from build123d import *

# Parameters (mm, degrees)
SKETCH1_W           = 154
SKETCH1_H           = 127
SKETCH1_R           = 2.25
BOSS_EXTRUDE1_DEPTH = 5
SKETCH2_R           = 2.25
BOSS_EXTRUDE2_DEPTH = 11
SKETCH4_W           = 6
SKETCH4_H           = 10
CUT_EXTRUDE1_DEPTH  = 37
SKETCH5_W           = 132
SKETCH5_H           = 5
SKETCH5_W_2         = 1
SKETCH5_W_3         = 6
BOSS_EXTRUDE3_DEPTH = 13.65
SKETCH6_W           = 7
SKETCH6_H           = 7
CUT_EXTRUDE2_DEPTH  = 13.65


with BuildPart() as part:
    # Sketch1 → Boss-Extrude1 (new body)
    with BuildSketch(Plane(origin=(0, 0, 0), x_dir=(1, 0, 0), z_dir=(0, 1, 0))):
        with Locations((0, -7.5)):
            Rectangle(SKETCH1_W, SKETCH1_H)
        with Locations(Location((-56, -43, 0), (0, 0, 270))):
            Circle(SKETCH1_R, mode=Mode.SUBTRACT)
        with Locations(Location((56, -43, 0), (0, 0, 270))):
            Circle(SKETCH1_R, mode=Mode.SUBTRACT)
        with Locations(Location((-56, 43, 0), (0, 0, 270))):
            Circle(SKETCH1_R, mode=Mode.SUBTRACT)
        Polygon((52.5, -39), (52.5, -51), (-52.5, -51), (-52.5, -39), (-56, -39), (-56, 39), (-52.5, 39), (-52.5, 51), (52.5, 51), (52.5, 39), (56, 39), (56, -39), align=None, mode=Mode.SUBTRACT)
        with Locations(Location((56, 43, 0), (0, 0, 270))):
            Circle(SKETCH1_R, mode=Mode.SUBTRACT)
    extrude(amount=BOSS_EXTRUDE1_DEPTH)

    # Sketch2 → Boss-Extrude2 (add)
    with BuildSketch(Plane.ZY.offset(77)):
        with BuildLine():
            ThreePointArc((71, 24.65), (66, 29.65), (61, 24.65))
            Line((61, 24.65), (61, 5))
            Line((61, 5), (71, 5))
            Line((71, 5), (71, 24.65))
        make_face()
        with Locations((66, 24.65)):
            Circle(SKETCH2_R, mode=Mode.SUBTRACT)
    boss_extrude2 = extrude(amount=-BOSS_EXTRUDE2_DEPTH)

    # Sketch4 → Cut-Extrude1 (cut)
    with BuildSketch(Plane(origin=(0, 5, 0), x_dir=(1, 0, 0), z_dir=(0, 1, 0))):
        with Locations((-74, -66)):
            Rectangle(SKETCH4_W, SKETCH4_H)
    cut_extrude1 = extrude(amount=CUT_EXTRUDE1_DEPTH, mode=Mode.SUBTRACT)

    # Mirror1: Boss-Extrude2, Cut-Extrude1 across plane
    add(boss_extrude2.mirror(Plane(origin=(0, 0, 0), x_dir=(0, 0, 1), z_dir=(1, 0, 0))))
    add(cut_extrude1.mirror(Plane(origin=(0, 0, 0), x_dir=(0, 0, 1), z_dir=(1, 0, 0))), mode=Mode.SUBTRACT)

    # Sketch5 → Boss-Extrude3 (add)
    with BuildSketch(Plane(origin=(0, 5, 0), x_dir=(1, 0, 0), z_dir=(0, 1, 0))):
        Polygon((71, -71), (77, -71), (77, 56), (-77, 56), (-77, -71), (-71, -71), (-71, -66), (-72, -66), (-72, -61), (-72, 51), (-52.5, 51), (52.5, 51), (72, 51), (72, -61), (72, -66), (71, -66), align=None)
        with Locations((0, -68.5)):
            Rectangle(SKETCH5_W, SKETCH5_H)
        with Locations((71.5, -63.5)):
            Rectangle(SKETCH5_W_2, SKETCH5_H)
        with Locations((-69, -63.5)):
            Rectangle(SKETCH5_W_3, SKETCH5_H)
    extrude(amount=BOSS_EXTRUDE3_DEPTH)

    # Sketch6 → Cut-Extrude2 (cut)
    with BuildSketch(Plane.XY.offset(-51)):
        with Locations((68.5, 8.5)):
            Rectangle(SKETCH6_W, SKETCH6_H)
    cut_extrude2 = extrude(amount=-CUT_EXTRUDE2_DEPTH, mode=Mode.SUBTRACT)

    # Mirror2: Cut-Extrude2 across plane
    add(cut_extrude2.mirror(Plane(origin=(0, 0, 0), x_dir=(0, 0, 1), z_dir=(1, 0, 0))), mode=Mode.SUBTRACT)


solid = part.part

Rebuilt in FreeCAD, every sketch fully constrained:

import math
import FreeCAD as App
import Part
import Sketcher
from FreeCAD import Vector

doc = App.newDocument("Part")
body = doc.addObject("PartDesign::Body", "Body")

sketch1 = doc.addObject("Sketcher::SketchObject", "Sketch")
body.addObject(sketch1)
sketch1.AttachmentSupport = (doc.XZ_Plane, [""])
sketch1.MapMode = "FlatFace"
sketch1.addGeometry(Part.LineSegment(Vector(-77, -56, 0), Vector(-77, 71, 0)), False)
sketch1.addGeometry(Part.LineSegment(Vector(-77, 71, 0), Vector(77, 71, 0)), False)
sketch1.addGeometry(Part.LineSegment(Vector(77, 71, 0), Vector(77, -56, 0)), False)
sketch1.addGeometry(Part.LineSegment(Vector(77, -56, 0), Vector(-77, -56, 0)), False)
sketch1.addGeometry(Part.Circle(Vector(-56, 43, 0), Vector(0, 0, 1), 2.2), False)
sketch1.addGeometry(Part.Circle(Vector(56, 43, 0), Vector(0, 0, 1), 2.2), False)
sketch1.addGeometry(Part.Circle(Vector(-56, -43, 0), Vector(0, 0, 1), 2.2), False)
sketch1.addGeometry(Part.LineSegment(Vector(56, 39, 0), Vector(52.5, 39, 0)), False)
sketch1.addGeometry(Part.LineSegment(Vector(52.5, 39, 0), Vector(52.5, 51, 0)), False)
sketch1.addGeometry(Part.LineSegment(Vector(52.5, 51, 0), Vector(-52.5, 51, 0)), False)
sketch1.addGeometry(Part.LineSegment(Vector(-52.5, 51, 0), Vector(-52.5, 39, 0)), False)
sketch1.addGeometry(Part.LineSegment(Vector(-52.5, 39, 0), Vector(-56, 39, 0)), False)
sketch1.addGeometry(Part.LineSegment(Vector(-56, 39, 0), Vector(-56, -39, 0)), False)
sketch1.addGeometry(Part.LineSegment(Vector(-56, -39, 0), Vector(-52.5, -39, 0)), False)
sketch1.addGeometry(Part.LineSegment(Vector(-52.5, -39, 0), Vector(-52.5, -51, 0)), False)
sketch1.addGeometry(Part.LineSegment(Vector(-52.5, -51, 0), Vector(52.5, -51, 0)), False)
sketch1.addGeometry(Part.LineSegment(Vector(52.5, -51, 0), Vector(52.5, -39, 0)), False)
sketch1.addGeometry(Part.LineSegment(Vector(52.5, -39, 0), Vector(56, -39, 0)), False)
sketch1.addGeometry(Part.LineSegment(Vector(56, -39, 0), Vector(56, 39, 0)), False)
sketch1.addGeometry(Part.Circle(Vector(56, -43, 0), Vector(0, 0, 1), 2.2), False)
sketch1.addConstraint(Sketcher.Constraint("Coincident", 0, 2, 1, 1))
sketch1.addConstraint(Sketcher.Constraint("Coincident", 1, 2, 2, 1))
sketch1.addConstraint(Sketcher.Constraint("Coincident", 2, 2, 3, 1))
sketch1.addConstraint(Sketcher.Constraint("Coincident", 3, 2, 0, 1))
sketch1.addConstraint(Sketcher.Constraint("Coincident", 7, 2, 8, 1))
sketch1.addConstraint(Sketcher.Constraint("Coincident", 8, 2, 9, 1))
sketch1.addConstraint(Sketcher.Constraint("Coincident", 9, 2, 10, 1))
sketch1.addConstraint(Sketcher.Constraint("Coincident", 10, 2, 11, 1))
sketch1.addConstraint(Sketcher.Constraint("Coincident", 11, 2, 12, 1))
sketch1.addConstraint(Sketcher.Constraint("Coincident", 12, 2, 13, 1))
sketch1.addConstraint(Sketcher.Constraint("Coincident", 13, 2, 14, 1))
sketch1.addConstraint(Sketcher.Constraint("Coincident", 14, 2, 15, 1))
sketch1.addConstraint(Sketcher.Constraint("Coincident", 15, 2, 16, 1))
sketch1.addConstraint(Sketcher.Constraint("Coincident", 16, 2, 17, 1))
sketch1.addConstraint(Sketcher.Constraint("Coincident", 17, 2, 18, 1))
sketch1.addConstraint(Sketcher.Constraint("Coincident", 18, 2, 7, 1))
sketch1.addConstraint(Sketcher.Constraint("Vertical", 0))
sketch1.addConstraint(Sketcher.Constraint("Horizontal", 1))
sketch1.addConstraint(Sketcher.Constraint("Vertical", 2))
sketch1.addConstraint(Sketcher.Constraint("Horizontal", 3))
sketch1.addConstraint(Sketcher.Constraint("Horizontal", 7))
sketch1.addConstraint(Sketcher.Constraint("Vertical", 8))
sketch1.addConstraint(Sketcher.Constraint("Horizontal", 9))
sketch1.addConstraint(Sketcher.Constraint("Vertical", 10))
sketch1.addConstraint(Sketcher.Constraint("Horizontal", 11))
sketch1.addConstraint(Sketcher.Constraint("Vertical", 12))
sketch1.addConstraint(Sketcher.Constraint("Horizontal", 13))
sketch1.addConstraint(Sketcher.Constraint("Vertical", 14))
sketch1.addConstraint(Sketcher.Constraint("Horizontal", 15))
sketch1.addConstraint(Sketcher.Constraint("Vertical", 16))
sketch1.addConstraint(Sketcher.Constraint("Horizontal", 17))
sketch1.addConstraint(Sketcher.Constraint("Vertical", 18))
sketch1.addConstraint(Sketcher.Constraint("Equal", 4, 5))
sketch1.addConstraint(Sketcher.Constraint("Equal", 5, 6))
sketch1.addConstraint(Sketcher.Constraint("Equal", 6, 19))
sketch1.addConstraint(Sketcher.Constraint("Symmetric", 5, 3, 6, 3, -1, 1))
sketch1.addConstraint(Sketcher.Constraint("Symmetric", 4, 3, 19, 3, -1, 1))
sketch1.addConstraint(Sketcher.Constraint("Symmetric", 7, 2, 13, 2, -1, 1))
sketch1.addConstraint(Sketcher.Constraint("Symmetric", 9, 2, 15, 2, -1, 1))
sketch1.addConstraint(Sketcher.Constraint("Symmetric", 11, 2, 17, 2, -1, 1))
sketch1.addConstraint(Sketcher.Constraint("Symmetric", 4, 3, 5, 3, -2))
sketch1.addConstraint(Sketcher.Constraint("Symmetric", 7, 2, 10, 2, -2))
sketch1.addConstraint(Sketcher.Constraint("Vertical", 6, 3, 11, 2))
sketch1.addConstraint(Sketcher.Constraint("Diameter", 4, 4.5))
sketch1.addConstraint(Sketcher.Constraint("DistanceX", 1, 1, 1, 2, 154.0))
sketch1.addConstraint(Sketcher.Constraint("DistanceX", 9, 2, 9, 1, 105.0))
sketch1.addConstraint(Sketcher.Constraint("DistanceY", 0, 1, 0, 2, 127.0))
sketch1.addConstraint(Sketcher.Constraint("DistanceY", 8, 1, 8, 2, 12.0))
sketch1.addConstraint(Sketcher.Constraint("DistanceY", 12, 2, 12, 1, 78.0))
sketch1.addConstraint(Sketcher.Constraint("DistanceX", 7, 2, 7, 1, 3.5))
sketch1.addConstraint(Sketcher.Constraint("DistanceY", -1, 1, 4, 3, 43.0))
sketch1.addConstraint(Sketcher.Constraint("DistanceX", 0, 2, -1, 1, 77.0))
sketch1.addConstraint(Sketcher.Constraint("DistanceY", -1, 1, 0, 2, 71.0))
pad1 = doc.addObject("PartDesign::Pad", "Pad")
body.addObject(pad1)
pad1.Profile = sketch1
pad1.Length = 5
pad1.Reversed = True

sketch2 = doc.addObject("Sketcher::SketchObject", "Sketch001")
body.addObject(sketch2)
sketch2.AttachmentSupport = (doc.YZ_Plane, [""])
sketch2.MapMode = "FlatFace"
sketch2.AttachmentOffset = App.Placement(Vector(0, 0, -77), App.Rotation())
sketch2.addGeometry(Part.ArcOfCircle(Part.Circle(Vector(24.6, 66, 0), Vector(0, 0, 1), 5), math.radians(-90), math.radians(90)), False)
sketch2.addGeometry(Part.LineSegment(Vector(24.6, 61, 0), Vector(5, 61, 0)), False)
sketch2.addGeometry(Part.LineSegment(Vector(5, 61, 0), Vector(5, 71, 0)), False)
sketch2.addGeometry(Part.LineSegment(Vector(5, 71, 0), Vector(24.6, 71, 0)), False)
sketch2.addGeometry(Part.Circle(Vector(24.6, 66, 0), Vector(0, 0, 1), 2.2), False)
sketch2.addConstraint(Sketcher.Constraint("Tangent", 0, 1, 1, 1))
sketch2.addConstraint(Sketcher.Constraint("Coincident", 1, 2, 2, 1))
sketch2.addConstraint(Sketcher.Constraint("Coincident", 2, 2, 3, 1))
sketch2.addConstraint(Sketcher.Constraint("Tangent", 3, 2, 0, 2))
sketch2.addConstraint(Sketcher.Constraint("Horizontal", 1))
sketch2.addConstraint(Sketcher.Constraint("Vertical", 2))
sketch2.addConstraint(Sketcher.Constraint("Horizontal", 3))
sketch2.addConstraint(Sketcher.Constraint("Coincident", 4, 3, 0, 3))
sketch2.addConstraint(Sketcher.Constraint("Radius", 0, 5.0))
sketch2.addConstraint(Sketcher.Constraint("Diameter", 4, 4.5))
sketch2.addConstraint(Sketcher.Constraint("DistanceY", -1, 1, 0, 3, 66.0))
sketch2.addConstraint(Sketcher.Constraint("DistanceX", -1, 1, 1, 2, 5.0))
sketch2.addConstraint(Sketcher.Constraint("DistanceX", 1, 2, 1, 1, 19.65))
pad2 = doc.addObject("PartDesign::Pad", "Pad001")
body.addObject(pad2)
pad2.Profile = sketch2
pad2.Length = 11

sketch3 = doc.addObject("Sketcher::SketchObject", "Sketch002")
body.addObject(sketch3)
sketch3.AttachmentSupport = (doc.XZ_Plane, [""])
sketch3.MapMode = "FlatFace"
sketch3.AttachmentOffset = App.Placement(Vector(0, 0, -5), App.Rotation())
sketch3.addGeometry(Part.LineSegment(Vector(-77, 61, 0), Vector(-77, 71, 0)), False)
sketch3.addGeometry(Part.LineSegment(Vector(-77, 71, 0), Vector(-71, 71, 0)), False)
sketch3.addGeometry(Part.LineSegment(Vector(-71, 71, 0), Vector(-71, 61, 0)), False)
sketch3.addGeometry(Part.LineSegment(Vector(-71, 61, 0), Vector(-77, 61, 0)), False)
sketch3.addConstraint(Sketcher.Constraint("Coincident", 0, 2, 1, 1))
sketch3.addConstraint(Sketcher.Constraint("Coincident", 1, 2, 2, 1))
sketch3.addConstraint(Sketcher.Constraint("Coincident", 2, 2, 3, 1))
sketch3.addConstraint(Sketcher.Constraint("Coincident", 3, 2, 0, 1))
sketch3.addConstraint(Sketcher.Constraint("Vertical", 0))
sketch3.addConstraint(Sketcher.Constraint("Horizontal", 1))
sketch3.addConstraint(Sketcher.Constraint("Vertical", 2))
sketch3.addConstraint(Sketcher.Constraint("Horizontal", 3))
sketch3.addConstraint(Sketcher.Constraint("DistanceX", 1, 1, 1, 2, 6.0))
sketch3.addConstraint(Sketcher.Constraint("DistanceY", 0, 1, 0, 2, 10.0))
sketch3.addConstraint(Sketcher.Constraint("DistanceX", 0, 2, -1, 1, 77.0))
sketch3.addConstraint(Sketcher.Constraint("DistanceY", -1, 1, 0, 2, 71.0))
pocket1 = doc.addObject("PartDesign::Pocket", "Pocket")
body.addObject(pocket1)
pocket1.Profile = sketch3
pocket1.Length = 37
doc.recompute()

mirrored = doc.addObject("PartDesign::Mirrored", "Mirrored")
body.addObject(mirrored)
mirrored.Originals = [pad2, pocket1]
mirrored.MirrorPlane = (doc.YZ_Plane, [""])
body.Tip = mirrored

sketch4 = doc.addObject("Sketcher::SketchObject", "Sketch003")
body.addObject(sketch4)
sketch4.AttachmentSupport = (doc.XZ_Plane, [""])
sketch4.MapMode = "FlatFace"
sketch4.AttachmentOffset = App.Placement(Vector(0, 0, -5), App.Rotation())
sketch4.addGeometry(Part.LineSegment(Vector(71, 71, 0), Vector(77, 71, 0)), False)
sketch4.addGeometry(Part.LineSegment(Vector(77, 71, 0), Vector(77, -56, 0)), False)
sketch4.addGeometry(Part.LineSegment(Vector(77, -56, 0), Vector(-77, -56, 0)), False)
sketch4.addGeometry(Part.LineSegment(Vector(-77, -56, 0), Vector(-77, 71, 0)), False)
sketch4.addGeometry(Part.LineSegment(Vector(-77, 71, 0), Vector(-71, 71, 0)), False)
sketch4.addGeometry(Part.LineSegment(Vector(-71, 71, 0), Vector(-71, 66, 0)), False)
sketch4.addGeometry(Part.LineSegment(Vector(-71, 66, 0), Vector(-66, 66, 0)), False)
sketch4.addGeometry(Part.LineSegment(Vector(-66, 66, 0), Vector(-66, 61, 0)), False)
sketch4.addGeometry(Part.LineSegment(Vector(-66, 61, 0), Vector(-72, 61, 0)), False)
sketch4.addGeometry(Part.LineSegment(Vector(-72, 61, 0), Vector(-72, -51, 0)), False)
sketch4.addGeometry(Part.LineSegment(Vector(-72, -51, 0), Vector(72, -51, 0)), False)
sketch4.addGeometry(Part.LineSegment(Vector(72, -51, 0), Vector(72, 61, 0)), False)
sketch4.addGeometry(Part.LineSegment(Vector(72, 61, 0), Vector(71, 61, 0)), False)
sketch4.addGeometry(Part.LineSegment(Vector(71, 61, 0), Vector(71, 71, 0)), False)
sketch4.addGeometry(Part.LineSegment(Vector(-66, 66, 0), Vector(-66, 71, 0)), False)
sketch4.addGeometry(Part.LineSegment(Vector(-66, 71, 0), Vector(66, 71, 0)), False)
sketch4.addGeometry(Part.LineSegment(Vector(66, 71, 0), Vector(66, 66, 0)), False)
sketch4.addGeometry(Part.LineSegment(Vector(66, 66, 0), Vector(-66, 66, 0)), False)
sketch4.addConstraint(Sketcher.Constraint("Coincident", 0, 2, 1, 1))
sketch4.addConstraint(Sketcher.Constraint("Coincident", 1, 2, 2, 1))
sketch4.addConstraint(Sketcher.Constraint("Coincident", 2, 2, 3, 1))
sketch4.addConstraint(Sketcher.Constraint("Coincident", 3, 2, 4, 1))
sketch4.addConstraint(Sketcher.Constraint("Coincident", 4, 2, 5, 1))
sketch4.addConstraint(Sketcher.Constraint("Coincident", 5, 2, 6, 1))
sketch4.addConstraint(Sketcher.Constraint("Coincident", 6, 2, 7, 1))
sketch4.addConstraint(Sketcher.Constraint("Coincident", 7, 2, 8, 1))
sketch4.addConstraint(Sketcher.Constraint("Coincident", 8, 2, 9, 1))
sketch4.addConstraint(Sketcher.Constraint("Coincident", 9, 2, 10, 1))
sketch4.addConstraint(Sketcher.Constraint("Coincident", 10, 2, 11, 1))
sketch4.addConstraint(Sketcher.Constraint("Coincident", 11, 2, 12, 1))
sketch4.addConstraint(Sketcher.Constraint("Coincident", 12, 2, 13, 1))
sketch4.addConstraint(Sketcher.Constraint("Coincident", 13, 2, 0, 1))
sketch4.addConstraint(Sketcher.Constraint("Coincident", 14, 2, 15, 1))
sketch4.addConstraint(Sketcher.Constraint("Coincident", 15, 2, 16, 1))
sketch4.addConstraint(Sketcher.Constraint("Coincident", 16, 2, 17, 1))
sketch4.addConstraint(Sketcher.Constraint("Coincident", 17, 2, 14, 1))
sketch4.addConstraint(Sketcher.Constraint("Horizontal", 0))
sketch4.addConstraint(Sketcher.Constraint("Vertical", 1))
sketch4.addConstraint(Sketcher.Constraint("Horizontal", 2))
sketch4.addConstraint(Sketcher.Constraint("Vertical", 3))
sketch4.addConstraint(Sketcher.Constraint("Horizontal", 4))
sketch4.addConstraint(Sketcher.Constraint("Vertical", 5))
sketch4.addConstraint(Sketcher.Constraint("Horizontal", 6))
sketch4.addConstraint(Sketcher.Constraint("Vertical", 7))
sketch4.addConstraint(Sketcher.Constraint("Horizontal", 8))
sketch4.addConstraint(Sketcher.Constraint("Vertical", 9))
sketch4.addConstraint(Sketcher.Constraint("Horizontal", 10))
sketch4.addConstraint(Sketcher.Constraint("Vertical", 11))
sketch4.addConstraint(Sketcher.Constraint("Horizontal", 12))
sketch4.addConstraint(Sketcher.Constraint("Vertical", 13))
sketch4.addConstraint(Sketcher.Constraint("Vertical", 14))
sketch4.addConstraint(Sketcher.Constraint("Horizontal", 15))
sketch4.addConstraint(Sketcher.Constraint("Vertical", 16))
sketch4.addConstraint(Sketcher.Constraint("Horizontal", 17))
sketch4.addConstraint(Sketcher.Constraint("Coincident", 17, 2, 6, 2))
sketch4.addConstraint(Sketcher.Constraint("Symmetric", 0, 2, 3, 2, -2))
sketch4.addConstraint(Sketcher.Constraint("Symmetric", 8, 2, 11, 2, -2))
sketch4.addConstraint(Sketcher.Constraint("Horizontal", 13, 2, 14, 2))
sketch4.addConstraint(Sketcher.Constraint("Equal", 0, 4))
sketch4.addConstraint(Sketcher.Constraint("Equal", 4, 8))
sketch4.addConstraint(Sketcher.Constraint("Equal", 6, 5))
sketch4.addConstraint(Sketcher.Constraint("Equal", 5, 7))
sketch4.addConstraint(Sketcher.Constraint("DistanceX", 0, 1, 0, 2, 6.0))
sketch4.addConstraint(Sketcher.Constraint("DistanceX", 2, 2, 2, 1, 154.0))
sketch4.addConstraint(Sketcher.Constraint("DistanceX", 6, 1, 6, 2, 5.0))
sketch4.addConstraint(Sketcher.Constraint("DistanceX", 15, 1, 15, 2, 132.0))
sketch4.addConstraint(Sketcher.Constraint("DistanceY", 1, 2, 1, 1, 127.0))
sketch4.addConstraint(Sketcher.Constraint("DistanceY", 9, 2, 9, 1, 112.0))
sketch4.addConstraint(Sketcher.Constraint("DistanceY", -1, 1, 0, 2, 71.0))
pad3 = doc.addObject("PartDesign::Pad", "Pad002")
body.addObject(pad3)
pad3.Profile = sketch4
pad3.Length = 13.65
pad3.Reversed = True

sketch5 = doc.addObject("Sketcher::SketchObject", "Sketch004")
body.addObject(sketch5)
sketch5.AttachmentSupport = (doc.XY_Plane, [""])
sketch5.MapMode = "FlatFace"
sketch5.AttachmentOffset = App.Placement(Vector(0, 0, -51), App.Rotation())
sketch5.addGeometry(Part.LineSegment(Vector(65, 12, 0), Vector(65, 5, 0)), False)
sketch5.addGeometry(Part.LineSegment(Vector(65, 5, 0), Vector(72, 5, 0)), False)
sketch5.addGeometry(Part.LineSegment(Vector(72, 5, 0), Vector(72, 12, 0)), False)
sketch5.addGeometry(Part.LineSegment(Vector(72, 12, 0), Vector(65, 12, 0)), False)
sketch5.addConstraint(Sketcher.Constraint("Coincident", 0, 2, 1, 1))
sketch5.addConstraint(Sketcher.Constraint("Coincident", 1, 2, 2, 1))
sketch5.addConstraint(Sketcher.Constraint("Coincident", 2, 2, 3, 1))
sketch5.addConstraint(Sketcher.Constraint("Coincident", 3, 2, 0, 1))
sketch5.addConstraint(Sketcher.Constraint("Vertical", 0))
sketch5.addConstraint(Sketcher.Constraint("Horizontal", 1))
sketch5.addConstraint(Sketcher.Constraint("Vertical", 2))
sketch5.addConstraint(Sketcher.Constraint("Horizontal", 3))
sketch5.addConstraint(Sketcher.Constraint("Equal", 3, 0))
sketch5.addConstraint(Sketcher.Constraint("DistanceX", 1, 1, 1, 2, 7.0))
sketch5.addConstraint(Sketcher.Constraint("DistanceX", -1, 1, 0, 2, 65.0))
sketch5.addConstraint(Sketcher.Constraint("DistanceY", -1, 1, 0, 2, 5.0))
pocket2 = doc.addObject("PartDesign::Pocket", "Pocket001")
body.addObject(pocket2)
pocket2.Profile = sketch5
pocket2.Length = 13.65
doc.recompute()

mirrored2 = doc.addObject("PartDesign::Mirrored", "Mirrored001")
body.addObject(mirrored2)
mirrored2.Originals = [pocket2]
mirrored2.MirrorPlane = (doc.YZ_Plane, [""])
body.Tip = mirrored2

doc.recompute()
